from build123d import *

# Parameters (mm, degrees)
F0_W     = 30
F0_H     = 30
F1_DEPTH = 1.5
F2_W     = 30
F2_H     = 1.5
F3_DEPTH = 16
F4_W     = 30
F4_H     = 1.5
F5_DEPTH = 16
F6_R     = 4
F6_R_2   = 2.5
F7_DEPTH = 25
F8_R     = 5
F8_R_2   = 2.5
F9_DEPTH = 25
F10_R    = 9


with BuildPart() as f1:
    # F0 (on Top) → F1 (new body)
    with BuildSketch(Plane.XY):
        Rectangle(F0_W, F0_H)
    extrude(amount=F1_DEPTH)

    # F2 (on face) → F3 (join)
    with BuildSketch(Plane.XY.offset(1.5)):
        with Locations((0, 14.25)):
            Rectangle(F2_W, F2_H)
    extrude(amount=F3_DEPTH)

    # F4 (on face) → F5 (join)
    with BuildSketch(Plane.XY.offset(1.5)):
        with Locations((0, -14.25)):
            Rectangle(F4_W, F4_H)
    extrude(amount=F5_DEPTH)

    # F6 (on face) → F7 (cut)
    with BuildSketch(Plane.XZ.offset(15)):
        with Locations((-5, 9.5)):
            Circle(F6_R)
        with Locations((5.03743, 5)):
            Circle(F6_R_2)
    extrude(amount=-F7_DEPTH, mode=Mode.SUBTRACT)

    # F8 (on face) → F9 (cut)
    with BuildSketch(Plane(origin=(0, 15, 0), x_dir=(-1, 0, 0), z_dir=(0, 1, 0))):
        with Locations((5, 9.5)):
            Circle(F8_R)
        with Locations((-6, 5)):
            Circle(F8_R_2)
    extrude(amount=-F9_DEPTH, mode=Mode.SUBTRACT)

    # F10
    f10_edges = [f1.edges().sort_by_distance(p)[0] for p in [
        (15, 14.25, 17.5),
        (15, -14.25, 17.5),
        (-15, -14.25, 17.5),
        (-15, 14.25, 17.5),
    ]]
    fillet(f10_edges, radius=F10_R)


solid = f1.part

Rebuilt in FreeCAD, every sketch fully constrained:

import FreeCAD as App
import Part
import Sketcher


def edges_at(feature, points):
    """Names of the edges that pass closest to the given points."""
    edges = feature.Shape.Edges
    near = lambda p: min(range(len(edges)), key=lambda i: edges[i].distToShape(Part.Vertex(*p))[0])
    return sorted({f"Edge{near(p) + 1}" for p in points})


def add_polygon(sketch, points):
    """Adds a closed chain of lines whose ends are joined by coincident constraints."""
    first, n = sketch.GeometryCount, len(points)
    for a, b in zip(points, points[1:] + points[:1]):
        sketch.addGeometry(Part.LineSegment(App.Vector(*a, 0), App.Vector(*b, 0)), False)
    for i in range(n):
        sketch.addConstraint(Sketcher.Constraint("Coincident", first + i, 2, first + (i + 1) % n, 1))

doc = App.newDocument("Part")
params = doc.addObject("Spreadsheet::Sheet", "Params")
for row, (alias, value) in enumerate([
    ("sketch1_width", "30 mm"),
    ("pad1_length", "1.5 mm"),
    ("sketch2_width", "30 mm"),
    ("sketch2_height", "1.5 mm"),
    ("pad2_length", "16 mm"),
    ("sketch3_width", "30 mm"),
    ("sketch3_height", "1.5 mm"),
    ("pad3_length", "16 mm"),
    ("sketch4_diameter", "8 mm"),
    ("sketch4_diameter2", "5 mm"),
    ("pocket1_length", "25 mm"),
    ("sketch5_diameter", "10 mm"),
    ("sketch5_diameter2", "5 mm"),
    ("pocket2_length", "25 mm"),
    ("fillet_radius", "9 mm"),
], start=1):
    params.set(f"A{row}", alias)
    params.set(f"B{row}", "=" + value)
    params.setAlias(f"B{row}", alias)

body = doc.addObject("PartDesign::Body", "Body")

# Sketch on XY plane
sketch1 = doc.addObject("Sketcher::SketchObject", "Sketch")
body.addObject(sketch1)
sketch1.AttachmentSupport = (doc.XY_Plane, [""])
sketch1.MapMode = "FlatFace"
add_polygon(sketch1, [(-15, 15), (-15, -15), (15, -15), (15, 15)])  # lines 0-3
sketch1.addConstraint([
    Sketcher.Constraint("Vertical", 0),
    Sketcher.Constraint("Horizontal", 1),
    Sketcher.Constraint("Vertical", 2),
    Sketcher.Constraint("Horizontal", 3),
    Sketcher.Constraint("Symmetric", 0, 2, 2, 2, -1, 1),
    Sketcher.Constraint("Equal", 3, 0),
    Sketcher.Constraint("DistanceX", 1, 1, 1, 2, 30.0),
])
sketch1.setExpression("Constraints[10]", "Params.sketch1_width")
pad1 = doc.addObject("PartDesign::Pad", "Pad")
body.addObject(pad1)
pad1.Profile = sketch1
pad1.setExpression("Length", "Params.pad1_length")

# Sketch on XY plane
sketch2 = doc.addObject("Sketcher::SketchObject", "Sketch001")
body.addObject(sketch2)
sketch2.AttachmentSupport = (doc.XY_Plane, [""])
sketch2.MapMode = "FlatFace"
sketch2.AttachmentOffset = App.Placement(App.Vector(0, 0, 1.5), App.Rotation())
add_polygon(sketch2, [(-15, 15), (-15, 13.5), (15, 13.5), (15, 15)])  # lines 0-3
sketch2.addConstraint([
    Sketcher.Constraint("Vertical", 0),
    Sketcher.Constraint("Horizontal", 1),
    Sketcher.Constraint("Vertical", 2),
    Sketcher.Constraint("Horizontal", 3),
    Sketcher.Constraint("DistanceX", 1, 1, 1, 2, 30.0),
    Sketcher.Constraint("DistanceY", 0, 2, 0, 1, 1.5),
    Sketcher.Constraint("DistanceX", 0, 2, -1, 1, 15.0),
    Sketcher.Constraint("DistanceY", -1, 1, 2, 2, 15.0),
])
sketch2.setExpression("Constraints[8]", "Params.sketch2_width")
sketch2.setExpression("Constraints[9]", "Params.sketch2_height")
pad2 = doc.addObject("PartDesign::Pad", "Pad001")
body.addObject(pad2)
pad2.Profile = sketch2
pad2.setExpression("Length", "Params.pad2_length")

# Sketch on XY plane
sketch3 = doc.addObject("Sketcher::SketchObject", "Sketch002")
body.addObject(sketch3)
sketch3.AttachmentSupport = (doc.XY_Plane, [""])
sketch3.MapMode = "FlatFace"
sketch3.AttachmentOffset = App.Placement(App.Vector(0, 0, 1.5), App.Rotation())
add_polygon(sketch3, [(-15, -13.5), (-15, -15), (15, -15), (15, -13.5)])  # lines 0-3
sketch3.addConstraint([
    Sketcher.Constraint("Vertical", 0),
    Sketcher.Constraint("Horizontal", 1),
    Sketcher.Constraint("Vertical", 2),
    Sketcher.Constraint("Horizontal", 3),
    Sketcher.Constraint("DistanceX", 1, 1, 1, 2, 30.0),
    Sketcher.Constraint("DistanceY", 0, 2, 0, 1, 1.5),
    Sketcher.Constraint("DistanceX", 0, 2, -1, 1, 15.0),
    Sketcher.Constraint("DistanceY", 0, 2, -1, 1, 15.0),
])
sketch3.setExpression("Constraints[8]", "Params.sketch3_width")
sketch3.setExpression("Constraints[9]", "Params.sketch3_height")
pad3 = doc.addObject("PartDesign::Pad", "Pad002")
body.addObject(pad3)
pad3.Profile = sketch3
pad3.setExpression("Length", "Params.pad3_length")

# Sketch on XZ plane
sketch4 = doc.addObject("Sketcher::SketchObject", "Sketch003")
body.addObject(sketch4)
sketch4.AttachmentSupport = (doc.XZ_Plane, [""])
sketch4.MapMode = "FlatFace"
sketch4.AttachmentOffset = App.Placement(App.Vector(0, 0, 15), App.Rotation())
sketch4.addGeometry([
    Part.Circle(App.Vector(-5, 9.5, 0), App.Vector(0, 0, 1), 4),
    Part.Circle(App.Vector(5.03743, 5, 0), App.Vector(0, 0, 1), 2.5),
], False)
sketch4.addConstraint([
    Sketcher.Constraint("Diameter", 0, 8.0),
    Sketcher.Constraint("Diameter", 1, 5.0),
    Sketcher.Constraint("DistanceX", 0, 3, -1, 1, 5.0),
    Sketcher.Constraint("DistanceY", -1, 1, 1, 3, 5.0),
    Sketcher.Constraint("DistanceY", -1, 1, 0, 3, 9.5),
    Sketcher.Constraint("DistanceX", -1, 1, 1, 3, 5.03743),
])
sketch4.setExpression("Constraints[0]", "Params.sketch4_diameter")
sketch4.setExpression("Constraints[1]", "Params.sketch4_diameter2")
pocket1 = doc.addObject("PartDesign::Pocket", "Pocket")
body.addObject(pocket1)
pocket1.Profile = sketch4
pocket1.setExpression("Length", "Params.pocket1_length")

# Sketch on XZ plane
sketch5 = doc.addObject("Sketcher::SketchObject", "Sketch004")
body.addObject(sketch5)
sketch5.AttachmentSupport = (doc.XZ_Plane, [""])
sketch5.MapMode = "FlatFace"
sketch5.AttachmentOffset = App.Placement(App.Vector(0, 0, -15), App.Rotation())
sketch5.addGeometry([
    Part.Circle(App.Vector(-5, 9.5, 0), App.Vector(0, 0, 1), 5),
    Part.Circle(App.Vector(6, 5, 0), App.Vector(0, 0, 1), 2.5),
], False)
sketch5.addConstraint([
    Sketcher.Constraint("Diameter", 0, 10.0),
    Sketcher.Constraint("Diameter", 1, 5.0),
    Sketcher.Constraint("DistanceX", 0, 3, -1, 1, 5.0),
    Sketcher.Constraint("DistanceX", -1, 1, 1, 3, 6.0),
    Sketcher.Constraint("DistanceY", -1, 1, 1, 3, 5.0),
    Sketcher.Constraint("DistanceY", -1, 1, 0, 3, 9.5),
])
sketch5.setExpression("Constraints[0]", "Params.sketch5_diameter")
sketch5.setExpression("Constraints[1]", "Params.sketch5_diameter2")
pocket2 = doc.addObject("PartDesign::Pocket", "Pocket001")
body.addObject(pocket2)
pocket2.Profile = sketch5
pocket2.setExpression("Length", "Params.pocket2_length")
pocket2.Reversed = True
doc.recompute()

fillet = doc.addObject("PartDesign::Fillet", "Fillet")
body.addObject(fillet)
fillet.Base = (pocket2, edges_at(pocket2, [
    (15, 14.25, 17.5),
    (15, -14.25, 17.5),
    (-15, -14.25, 17.5),
    (-15, 14.25, 17.5),
]))
fillet.setExpression("Radius", "Params.fillet_radius")

doc.recompute()
